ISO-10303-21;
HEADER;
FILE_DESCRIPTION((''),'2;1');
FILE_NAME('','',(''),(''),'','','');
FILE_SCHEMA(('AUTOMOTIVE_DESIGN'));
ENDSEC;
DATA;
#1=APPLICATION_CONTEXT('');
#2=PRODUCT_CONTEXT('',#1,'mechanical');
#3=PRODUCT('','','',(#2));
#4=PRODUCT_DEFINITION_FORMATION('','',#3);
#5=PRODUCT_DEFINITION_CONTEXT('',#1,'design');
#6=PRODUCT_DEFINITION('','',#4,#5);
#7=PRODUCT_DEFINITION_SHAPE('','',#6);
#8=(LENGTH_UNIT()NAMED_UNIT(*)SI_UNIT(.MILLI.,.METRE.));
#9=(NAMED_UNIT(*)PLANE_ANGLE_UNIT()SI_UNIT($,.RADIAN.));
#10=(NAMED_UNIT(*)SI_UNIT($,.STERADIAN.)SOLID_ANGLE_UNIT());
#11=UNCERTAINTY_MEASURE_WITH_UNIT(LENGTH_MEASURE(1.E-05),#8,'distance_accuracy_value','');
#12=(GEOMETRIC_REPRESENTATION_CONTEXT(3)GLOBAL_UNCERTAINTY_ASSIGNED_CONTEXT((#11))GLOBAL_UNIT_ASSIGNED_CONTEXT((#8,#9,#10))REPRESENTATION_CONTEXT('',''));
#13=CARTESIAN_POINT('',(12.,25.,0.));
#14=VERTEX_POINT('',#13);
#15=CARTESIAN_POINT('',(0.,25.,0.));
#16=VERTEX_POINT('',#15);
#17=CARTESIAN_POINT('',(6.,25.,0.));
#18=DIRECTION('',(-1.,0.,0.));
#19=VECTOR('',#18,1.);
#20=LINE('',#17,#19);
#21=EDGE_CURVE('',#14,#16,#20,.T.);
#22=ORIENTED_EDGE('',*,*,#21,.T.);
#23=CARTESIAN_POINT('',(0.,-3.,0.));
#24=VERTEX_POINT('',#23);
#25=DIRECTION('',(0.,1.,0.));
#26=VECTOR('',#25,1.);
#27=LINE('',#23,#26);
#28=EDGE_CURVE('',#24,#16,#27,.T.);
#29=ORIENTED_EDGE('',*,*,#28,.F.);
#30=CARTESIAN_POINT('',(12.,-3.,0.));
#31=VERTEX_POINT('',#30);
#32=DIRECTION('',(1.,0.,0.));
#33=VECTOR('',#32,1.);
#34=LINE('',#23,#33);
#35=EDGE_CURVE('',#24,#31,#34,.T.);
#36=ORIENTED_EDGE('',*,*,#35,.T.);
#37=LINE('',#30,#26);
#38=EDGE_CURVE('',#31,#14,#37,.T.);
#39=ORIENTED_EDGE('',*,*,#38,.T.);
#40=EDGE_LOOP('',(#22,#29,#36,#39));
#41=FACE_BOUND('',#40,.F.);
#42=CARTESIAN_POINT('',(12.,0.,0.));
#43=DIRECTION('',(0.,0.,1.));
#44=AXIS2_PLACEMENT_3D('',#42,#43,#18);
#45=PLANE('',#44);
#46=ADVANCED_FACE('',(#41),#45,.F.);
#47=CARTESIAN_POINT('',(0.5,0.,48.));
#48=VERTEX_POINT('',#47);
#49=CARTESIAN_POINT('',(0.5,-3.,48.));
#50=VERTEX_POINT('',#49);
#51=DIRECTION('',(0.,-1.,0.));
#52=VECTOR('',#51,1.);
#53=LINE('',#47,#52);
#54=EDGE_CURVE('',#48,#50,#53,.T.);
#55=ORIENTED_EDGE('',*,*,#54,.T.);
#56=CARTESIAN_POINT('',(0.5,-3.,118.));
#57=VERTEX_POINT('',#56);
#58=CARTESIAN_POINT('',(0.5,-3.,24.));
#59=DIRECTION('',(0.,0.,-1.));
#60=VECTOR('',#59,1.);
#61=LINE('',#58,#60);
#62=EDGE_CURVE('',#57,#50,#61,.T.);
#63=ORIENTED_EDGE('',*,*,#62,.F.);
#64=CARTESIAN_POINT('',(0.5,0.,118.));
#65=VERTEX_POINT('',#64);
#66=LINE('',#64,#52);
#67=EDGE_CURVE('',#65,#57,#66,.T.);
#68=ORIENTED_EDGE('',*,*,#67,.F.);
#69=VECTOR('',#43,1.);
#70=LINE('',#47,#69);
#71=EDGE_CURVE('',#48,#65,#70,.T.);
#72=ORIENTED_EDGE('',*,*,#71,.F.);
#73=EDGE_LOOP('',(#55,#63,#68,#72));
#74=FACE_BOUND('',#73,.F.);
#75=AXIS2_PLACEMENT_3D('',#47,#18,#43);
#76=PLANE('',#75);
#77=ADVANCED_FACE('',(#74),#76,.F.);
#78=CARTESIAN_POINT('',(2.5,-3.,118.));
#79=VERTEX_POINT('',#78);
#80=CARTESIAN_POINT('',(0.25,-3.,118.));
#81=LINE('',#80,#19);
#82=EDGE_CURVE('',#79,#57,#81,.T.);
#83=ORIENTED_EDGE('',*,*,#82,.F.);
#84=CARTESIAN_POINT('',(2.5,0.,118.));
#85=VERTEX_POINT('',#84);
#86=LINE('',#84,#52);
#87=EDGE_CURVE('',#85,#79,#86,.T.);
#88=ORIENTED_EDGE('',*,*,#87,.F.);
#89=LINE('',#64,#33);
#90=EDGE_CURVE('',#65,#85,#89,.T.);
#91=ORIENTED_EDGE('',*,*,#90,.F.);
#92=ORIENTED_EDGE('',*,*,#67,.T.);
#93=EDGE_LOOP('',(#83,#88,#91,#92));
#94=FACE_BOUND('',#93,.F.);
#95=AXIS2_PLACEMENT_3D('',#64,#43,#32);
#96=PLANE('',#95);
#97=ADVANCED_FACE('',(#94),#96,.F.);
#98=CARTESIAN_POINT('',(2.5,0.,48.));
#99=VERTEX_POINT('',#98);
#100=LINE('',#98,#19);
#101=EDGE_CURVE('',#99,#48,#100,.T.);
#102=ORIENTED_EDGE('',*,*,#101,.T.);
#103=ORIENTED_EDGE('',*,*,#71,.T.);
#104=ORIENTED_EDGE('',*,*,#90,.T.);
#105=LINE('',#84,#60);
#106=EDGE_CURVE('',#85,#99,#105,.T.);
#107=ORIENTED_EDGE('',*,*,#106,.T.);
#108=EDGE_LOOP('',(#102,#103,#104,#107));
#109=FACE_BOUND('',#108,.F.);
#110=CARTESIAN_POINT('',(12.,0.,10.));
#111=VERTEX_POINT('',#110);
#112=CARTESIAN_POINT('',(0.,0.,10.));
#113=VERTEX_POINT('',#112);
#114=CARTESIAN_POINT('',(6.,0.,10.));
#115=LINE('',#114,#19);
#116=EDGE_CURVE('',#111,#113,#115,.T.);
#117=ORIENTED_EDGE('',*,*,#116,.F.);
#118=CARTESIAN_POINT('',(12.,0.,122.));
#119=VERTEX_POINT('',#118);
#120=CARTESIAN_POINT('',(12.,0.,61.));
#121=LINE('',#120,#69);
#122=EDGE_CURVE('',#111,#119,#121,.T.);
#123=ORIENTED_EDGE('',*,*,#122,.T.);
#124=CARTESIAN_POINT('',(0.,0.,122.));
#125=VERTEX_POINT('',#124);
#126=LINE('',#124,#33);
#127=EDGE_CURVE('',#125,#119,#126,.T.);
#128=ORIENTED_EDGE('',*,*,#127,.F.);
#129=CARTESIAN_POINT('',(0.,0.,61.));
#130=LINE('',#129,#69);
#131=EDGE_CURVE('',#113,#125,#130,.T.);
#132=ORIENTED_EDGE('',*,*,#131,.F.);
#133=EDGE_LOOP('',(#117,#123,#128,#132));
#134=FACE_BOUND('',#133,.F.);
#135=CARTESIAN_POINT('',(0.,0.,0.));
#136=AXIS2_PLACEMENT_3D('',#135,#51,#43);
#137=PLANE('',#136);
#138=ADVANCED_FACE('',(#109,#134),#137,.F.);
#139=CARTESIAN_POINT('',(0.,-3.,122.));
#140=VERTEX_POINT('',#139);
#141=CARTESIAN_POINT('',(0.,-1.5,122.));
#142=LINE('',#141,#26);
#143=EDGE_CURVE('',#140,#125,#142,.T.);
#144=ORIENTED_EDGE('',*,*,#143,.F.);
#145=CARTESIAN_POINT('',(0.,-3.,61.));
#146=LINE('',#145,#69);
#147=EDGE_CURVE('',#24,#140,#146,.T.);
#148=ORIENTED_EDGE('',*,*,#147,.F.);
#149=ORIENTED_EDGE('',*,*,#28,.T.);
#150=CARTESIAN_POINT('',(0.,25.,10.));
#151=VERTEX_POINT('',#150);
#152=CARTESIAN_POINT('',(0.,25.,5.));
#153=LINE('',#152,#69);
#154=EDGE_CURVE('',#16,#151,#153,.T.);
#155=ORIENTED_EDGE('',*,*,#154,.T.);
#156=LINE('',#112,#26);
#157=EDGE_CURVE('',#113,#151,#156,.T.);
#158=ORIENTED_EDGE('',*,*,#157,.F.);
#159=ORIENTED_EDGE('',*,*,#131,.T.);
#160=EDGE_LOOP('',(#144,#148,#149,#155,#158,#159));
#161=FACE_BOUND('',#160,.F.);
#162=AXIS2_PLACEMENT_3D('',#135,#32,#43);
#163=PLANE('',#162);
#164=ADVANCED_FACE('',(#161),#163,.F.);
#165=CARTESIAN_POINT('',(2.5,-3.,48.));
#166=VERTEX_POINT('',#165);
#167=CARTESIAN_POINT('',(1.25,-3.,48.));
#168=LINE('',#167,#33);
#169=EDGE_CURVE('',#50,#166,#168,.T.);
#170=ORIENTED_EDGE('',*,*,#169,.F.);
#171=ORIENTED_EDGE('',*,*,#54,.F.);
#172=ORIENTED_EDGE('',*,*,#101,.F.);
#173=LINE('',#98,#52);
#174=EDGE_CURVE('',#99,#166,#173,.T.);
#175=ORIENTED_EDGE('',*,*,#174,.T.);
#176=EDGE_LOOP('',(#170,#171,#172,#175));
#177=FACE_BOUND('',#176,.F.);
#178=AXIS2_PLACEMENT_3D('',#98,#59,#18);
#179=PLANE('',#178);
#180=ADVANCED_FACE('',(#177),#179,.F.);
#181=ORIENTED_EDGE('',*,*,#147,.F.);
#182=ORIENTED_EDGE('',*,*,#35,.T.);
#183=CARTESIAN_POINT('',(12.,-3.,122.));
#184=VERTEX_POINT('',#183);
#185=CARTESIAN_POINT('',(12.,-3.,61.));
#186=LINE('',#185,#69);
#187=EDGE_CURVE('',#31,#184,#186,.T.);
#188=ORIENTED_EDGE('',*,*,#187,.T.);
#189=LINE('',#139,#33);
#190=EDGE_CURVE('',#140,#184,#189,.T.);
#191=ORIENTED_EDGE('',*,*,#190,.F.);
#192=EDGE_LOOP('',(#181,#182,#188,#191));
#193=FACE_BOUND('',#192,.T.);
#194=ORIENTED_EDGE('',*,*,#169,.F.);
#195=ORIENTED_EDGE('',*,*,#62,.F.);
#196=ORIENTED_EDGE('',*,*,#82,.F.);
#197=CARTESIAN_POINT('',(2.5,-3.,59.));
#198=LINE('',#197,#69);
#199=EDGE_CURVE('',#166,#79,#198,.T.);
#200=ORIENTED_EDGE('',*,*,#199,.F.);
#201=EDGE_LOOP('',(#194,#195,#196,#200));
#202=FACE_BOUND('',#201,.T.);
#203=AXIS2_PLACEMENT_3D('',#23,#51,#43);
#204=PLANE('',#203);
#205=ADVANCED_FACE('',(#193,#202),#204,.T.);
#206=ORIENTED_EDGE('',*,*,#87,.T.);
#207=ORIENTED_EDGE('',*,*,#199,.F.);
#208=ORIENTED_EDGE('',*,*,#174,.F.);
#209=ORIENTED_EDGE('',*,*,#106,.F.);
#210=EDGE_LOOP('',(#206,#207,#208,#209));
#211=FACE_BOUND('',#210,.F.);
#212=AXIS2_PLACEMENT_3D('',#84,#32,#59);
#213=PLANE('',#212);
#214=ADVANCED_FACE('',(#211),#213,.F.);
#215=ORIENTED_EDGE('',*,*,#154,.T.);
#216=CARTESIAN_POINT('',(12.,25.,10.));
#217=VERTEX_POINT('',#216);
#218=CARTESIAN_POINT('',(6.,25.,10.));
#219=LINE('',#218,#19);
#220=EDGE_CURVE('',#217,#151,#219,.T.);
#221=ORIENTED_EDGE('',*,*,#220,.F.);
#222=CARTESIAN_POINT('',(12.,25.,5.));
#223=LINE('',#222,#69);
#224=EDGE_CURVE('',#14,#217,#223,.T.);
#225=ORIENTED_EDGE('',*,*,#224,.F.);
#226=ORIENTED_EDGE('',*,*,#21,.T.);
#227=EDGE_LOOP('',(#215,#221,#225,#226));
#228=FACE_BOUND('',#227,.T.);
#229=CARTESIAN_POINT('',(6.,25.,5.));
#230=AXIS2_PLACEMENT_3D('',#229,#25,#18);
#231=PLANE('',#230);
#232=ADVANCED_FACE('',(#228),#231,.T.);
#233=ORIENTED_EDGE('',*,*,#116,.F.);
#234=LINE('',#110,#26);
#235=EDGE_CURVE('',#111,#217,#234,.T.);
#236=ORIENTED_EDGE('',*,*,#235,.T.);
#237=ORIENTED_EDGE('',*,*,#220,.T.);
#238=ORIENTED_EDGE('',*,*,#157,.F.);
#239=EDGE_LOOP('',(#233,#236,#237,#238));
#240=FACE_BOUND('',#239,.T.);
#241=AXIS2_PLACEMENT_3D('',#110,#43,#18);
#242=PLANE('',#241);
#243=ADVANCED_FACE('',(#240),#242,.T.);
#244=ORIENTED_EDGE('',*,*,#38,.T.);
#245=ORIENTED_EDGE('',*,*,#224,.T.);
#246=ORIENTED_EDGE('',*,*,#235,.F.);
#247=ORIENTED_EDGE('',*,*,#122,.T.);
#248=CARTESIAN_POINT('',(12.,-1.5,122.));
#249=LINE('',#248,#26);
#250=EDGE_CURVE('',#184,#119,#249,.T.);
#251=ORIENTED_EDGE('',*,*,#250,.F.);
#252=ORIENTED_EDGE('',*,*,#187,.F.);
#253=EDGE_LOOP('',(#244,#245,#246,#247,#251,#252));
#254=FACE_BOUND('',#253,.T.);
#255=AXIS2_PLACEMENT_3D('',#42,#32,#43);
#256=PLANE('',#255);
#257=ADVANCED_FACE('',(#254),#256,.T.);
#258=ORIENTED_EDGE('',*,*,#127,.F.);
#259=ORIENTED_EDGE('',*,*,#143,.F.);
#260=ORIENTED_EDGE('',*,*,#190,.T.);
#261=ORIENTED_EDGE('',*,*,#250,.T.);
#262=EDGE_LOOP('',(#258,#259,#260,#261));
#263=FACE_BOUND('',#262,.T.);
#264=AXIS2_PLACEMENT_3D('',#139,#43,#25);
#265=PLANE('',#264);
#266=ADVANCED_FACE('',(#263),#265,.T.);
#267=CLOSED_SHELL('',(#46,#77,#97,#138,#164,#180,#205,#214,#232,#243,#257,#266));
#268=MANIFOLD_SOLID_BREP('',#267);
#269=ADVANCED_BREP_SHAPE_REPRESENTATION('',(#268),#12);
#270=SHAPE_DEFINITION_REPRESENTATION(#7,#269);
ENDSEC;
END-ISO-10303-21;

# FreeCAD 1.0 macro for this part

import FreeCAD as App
import Part
import Sketcher
from FreeCAD import Vector
Q = App.Units.Quantity


def add_polygon(sketch, points):
    """Adds a closed chain of lines whose ends are joined by coincident constraints."""
    first, n = sketch.GeometryCount, len(points)
    for a, b in zip(points, points[1:] + points[:1]):
        sketch.addGeometry(Part.LineSegment(App.Vector(*a, 0), App.Vector(*b, 0)), False)
    for i in range(n):
        sketch.addConstraint(Sketcher.Constraint("Coincident", first + i, 2, first + (i + 1) % n, 1))

doc = App.newDocument("Part")
body = doc.addObject("PartDesign::Body", "Body")

# Sketch on YZ plane
sketch1 = body.newObject("Sketcher::SketchObject", "Sketch")
sketch1.AttachmentSupport = (doc.getObject("YZ_Plane"), [""])
sketch1.MapMode = "FlatFace"
add_polygon(sketch1, [(-3, 122), (-3, 0), (0, 0), (0, 122)])  # lines 0-3
sketch1.addConstraint([
    Sketcher.Constraint("Vertical", 0),
    Sketcher.Constraint("Horizontal", 1),
    Sketcher.Constraint("Vertical", 2),
    Sketcher.Constraint("Horizontal", 3),
    Sketcher.Constraint("Coincident", 1, 2, -1, 1),
    Sketcher.Constraint("DistanceX", 1, 1, 1, 2, Q("3 mm")),
    Sketcher.Constraint("DistanceY", 0, 2, 0, 1, Q("122 mm")),
])
pad1 = body.newObject("PartDesign::Pad", "Pad")
pad1.Profile = sketch1
pad1.Length = 12

# Sketch on XZ plane
sketch2 = body.newObject("Sketcher::SketchObject", "Sketch001")
sketch2.AttachmentSupport = (doc.getObject("XZ_Plane"), [""])
sketch2.MapMode = "FlatFace"
add_polygon(sketch2, [(12, 10), (12, 0), (0, 0), (0, 10)])  # lines 0-3
sketch2.addConstraint([
    Sketcher.Constraint("Vertical", 0),
    Sketcher.Constraint("Horizontal", 1),
    Sketcher.Constraint("Vertical", 2),
    Sketcher.Constraint("Horizontal", 3),
    Sketcher.Constraint("Coincident", 1, 2, -1, 1),
    Sketcher.Constraint("DistanceX", 1, 2, 1, 1, Q("12 mm")),
    Sketcher.Constraint("DistanceY", 0, 2, 0, 1, Q("10 mm")),
])
pad2 = body.newObject("PartDesign::Pad", "Pad001")
pad2.Profile = sketch2
pad2.Length = 25
pad2.Reversed = True

# Sketch on XZ plane
sketch3 = body.newObject("Sketcher::SketchObject", "Sketch002")
sketch3.AttachmentSupport = (doc.getObject("XZ_Plane"), [""])
sketch3.MapMode = "FlatFace"
add_polygon(sketch3, [(0.5, 118), (2.5, 118), (2.5, 48), (0.5, 48)])  # lines 0-3
sketch3.addConstraint([
    Sketcher.Constraint("Horizontal", 0),
    Sketcher.Constraint("Vertical", 1),
    Sketcher.Constraint("Horizontal", 2),
    Sketcher.Constraint("Vertical", 3),
    Sketcher.Constraint("DistanceX", 0, 1, 0, 2, Q("2 mm")),
    Sketcher.Constraint("DistanceY", 1, 2, 1, 1, Q("70 mm")),
    Sketcher.Constraint("DistanceY", -1, 1, 0, 2, Q("118 mm")),
    Sketcher.Constraint("DistanceX", -1, 1, 0, 2, Q("2.5 mm")),
])
pocket1 = body.newObject("PartDesign::Pocket", "Pocket")
pocket1.Profile = sketch3
pocket1.Type = "ThroughAll"
pocket1.Reversed = True

doc.recompute()
